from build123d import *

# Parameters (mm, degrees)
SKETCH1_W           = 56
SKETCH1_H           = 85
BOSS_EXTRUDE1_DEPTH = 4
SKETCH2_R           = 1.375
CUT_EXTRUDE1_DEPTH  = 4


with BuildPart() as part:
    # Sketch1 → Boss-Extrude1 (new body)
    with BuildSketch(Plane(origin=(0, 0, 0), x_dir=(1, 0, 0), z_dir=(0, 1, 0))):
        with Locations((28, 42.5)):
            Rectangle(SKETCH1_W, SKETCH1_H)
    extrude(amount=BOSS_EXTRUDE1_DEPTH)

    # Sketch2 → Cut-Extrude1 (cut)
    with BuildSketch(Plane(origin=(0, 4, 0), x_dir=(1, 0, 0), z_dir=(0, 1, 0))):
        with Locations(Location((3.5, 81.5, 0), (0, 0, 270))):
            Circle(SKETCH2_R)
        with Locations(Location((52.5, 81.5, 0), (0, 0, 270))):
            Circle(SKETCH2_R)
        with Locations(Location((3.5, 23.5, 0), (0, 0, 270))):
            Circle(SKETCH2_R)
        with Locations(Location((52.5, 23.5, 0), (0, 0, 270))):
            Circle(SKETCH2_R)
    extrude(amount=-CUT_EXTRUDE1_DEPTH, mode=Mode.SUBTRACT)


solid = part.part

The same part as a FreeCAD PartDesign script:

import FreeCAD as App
import Part
import Sketcher
Q = App.Units.Quantity

doc = App.newDocument("Part")
body = doc.addObject("PartDesign::Body", "Body")

# Sketch on XZ plane
sketch1 = body.newObject("Sketcher::SketchObject", "Sketch")
sketch1.AttachmentSupport = (doc.getObject("XZ_Plane"), [""])
sketch1.MapMode = "FlatFace"
sketch1.addGeometry([
    Part.LineSegment(App.Vector(0, -85, 0), App.Vector(0, 0, 0)),
    Part.LineSegment(App.Vector(0, 0, 0), App.Vector(56, 0, 0)),
    Part.LineSegment(App.Vector(56, 0, 0), App.Vector(56, -85, 0)),
    Part.LineSegment(App.Vector(56, -85, 0), App.Vector(0, -85, 0)),
], False)
sketch1.addConstraint([
    Sketcher.Constraint("Coincident", 0, 2, 1, 1),
    Sketcher.Constraint("Coincident", 1, 2, 2, 1),
    Sketcher.Constraint("Coincident", 2, 2, 3, 1),
    Sketcher.Constraint("Coincident", 3, 2, 0, 1),
    Sketcher.Constraint("Vertical", 0),
    Sketcher.Constraint("Horizontal", 1),
    Sketcher.Constraint("Vertical", 2),
    Sketcher.Constraint("Horizontal", 3),
    Sketcher.Constraint("Coincident", 0, 2, -1, 1),
    Sketcher.Constraint("DistanceX", 1, 1, 1, 2, Q("56 mm")),
    Sketcher.Constraint("DistanceY", 0, 1, 0, 2, Q("85 mm")),
])
pad1 = body.newObject("PartDesign::Pad", "Pad")
pad1.Profile = sketch1
pad1.Length = 4
pad1.Reversed = True

# Sketch on XZ plane
sketch2 = body.newObject("Sketcher::SketchObject", "Sketch001")
sketch2.AttachmentSupport = (doc.getObject("XZ_Plane"), [""])
sketch2.MapMode = "FlatFace"
sketch2.AttachmentOffset = App.Placement(App.Vector(0, 0, -4), App.Rotation())
sketch2.addGeometry([
    Part.Circle(App.Vector(3.5, -81.5, 0), App.Vector(0, 0, 1), 1.4),
    Part.Circle(App.Vector(52.5, -81.5, 0), App.Vector(0, 0, 1), 1.4),
    Part.Circle(App.Vector(3.5, -23.5, 0), App.Vector(0, 0, 1), 1.4),
    Part.Circle(App.Vector(52.5, -23.5, 0), App.Vector(0, 0, 1), 1.4),
], False)
sketch2.addConstraint([
    Sketcher.Constraint("Equal", 0, 1),
    Sketcher.Constraint("Equal", 1, 2),
    Sketcher.Constraint("Equal", 2, 3),
    Sketcher.Constraint("Horizontal", 0, 3, 1, 3),
    Sketcher.Constraint("Horizontal", 2, 3, 3, 3),
    Sketcher.Constraint("Vertical", 0, 3, 2, 3),
    Sketcher.Constraint("Vertical", 1, 3, 3, 3),
    Sketcher.Constraint("Diameter", 0, Q("2.75 mm")),
    Sketcher.Constraint("DistanceX", 0, 3, 1, 3, Q("49 mm")),
    Sketcher.Constraint("DistanceY", 0, 3, 2, 3, Q("58 mm")),
    Sketcher.Constraint("DistanceX", -1, 1, 0, 3, Q("3.5 mm")),
    Sketcher.Constraint("DistanceY", 0, 3, -1, 1, Q("81.5 mm")),
])
pocket1 = body.newObject("PartDesign::Pocket", "Pocket")
pocket1.Profile = sketch2
pocket1.Length = 4
pocket1.Reversed = True

doc.recompute()
